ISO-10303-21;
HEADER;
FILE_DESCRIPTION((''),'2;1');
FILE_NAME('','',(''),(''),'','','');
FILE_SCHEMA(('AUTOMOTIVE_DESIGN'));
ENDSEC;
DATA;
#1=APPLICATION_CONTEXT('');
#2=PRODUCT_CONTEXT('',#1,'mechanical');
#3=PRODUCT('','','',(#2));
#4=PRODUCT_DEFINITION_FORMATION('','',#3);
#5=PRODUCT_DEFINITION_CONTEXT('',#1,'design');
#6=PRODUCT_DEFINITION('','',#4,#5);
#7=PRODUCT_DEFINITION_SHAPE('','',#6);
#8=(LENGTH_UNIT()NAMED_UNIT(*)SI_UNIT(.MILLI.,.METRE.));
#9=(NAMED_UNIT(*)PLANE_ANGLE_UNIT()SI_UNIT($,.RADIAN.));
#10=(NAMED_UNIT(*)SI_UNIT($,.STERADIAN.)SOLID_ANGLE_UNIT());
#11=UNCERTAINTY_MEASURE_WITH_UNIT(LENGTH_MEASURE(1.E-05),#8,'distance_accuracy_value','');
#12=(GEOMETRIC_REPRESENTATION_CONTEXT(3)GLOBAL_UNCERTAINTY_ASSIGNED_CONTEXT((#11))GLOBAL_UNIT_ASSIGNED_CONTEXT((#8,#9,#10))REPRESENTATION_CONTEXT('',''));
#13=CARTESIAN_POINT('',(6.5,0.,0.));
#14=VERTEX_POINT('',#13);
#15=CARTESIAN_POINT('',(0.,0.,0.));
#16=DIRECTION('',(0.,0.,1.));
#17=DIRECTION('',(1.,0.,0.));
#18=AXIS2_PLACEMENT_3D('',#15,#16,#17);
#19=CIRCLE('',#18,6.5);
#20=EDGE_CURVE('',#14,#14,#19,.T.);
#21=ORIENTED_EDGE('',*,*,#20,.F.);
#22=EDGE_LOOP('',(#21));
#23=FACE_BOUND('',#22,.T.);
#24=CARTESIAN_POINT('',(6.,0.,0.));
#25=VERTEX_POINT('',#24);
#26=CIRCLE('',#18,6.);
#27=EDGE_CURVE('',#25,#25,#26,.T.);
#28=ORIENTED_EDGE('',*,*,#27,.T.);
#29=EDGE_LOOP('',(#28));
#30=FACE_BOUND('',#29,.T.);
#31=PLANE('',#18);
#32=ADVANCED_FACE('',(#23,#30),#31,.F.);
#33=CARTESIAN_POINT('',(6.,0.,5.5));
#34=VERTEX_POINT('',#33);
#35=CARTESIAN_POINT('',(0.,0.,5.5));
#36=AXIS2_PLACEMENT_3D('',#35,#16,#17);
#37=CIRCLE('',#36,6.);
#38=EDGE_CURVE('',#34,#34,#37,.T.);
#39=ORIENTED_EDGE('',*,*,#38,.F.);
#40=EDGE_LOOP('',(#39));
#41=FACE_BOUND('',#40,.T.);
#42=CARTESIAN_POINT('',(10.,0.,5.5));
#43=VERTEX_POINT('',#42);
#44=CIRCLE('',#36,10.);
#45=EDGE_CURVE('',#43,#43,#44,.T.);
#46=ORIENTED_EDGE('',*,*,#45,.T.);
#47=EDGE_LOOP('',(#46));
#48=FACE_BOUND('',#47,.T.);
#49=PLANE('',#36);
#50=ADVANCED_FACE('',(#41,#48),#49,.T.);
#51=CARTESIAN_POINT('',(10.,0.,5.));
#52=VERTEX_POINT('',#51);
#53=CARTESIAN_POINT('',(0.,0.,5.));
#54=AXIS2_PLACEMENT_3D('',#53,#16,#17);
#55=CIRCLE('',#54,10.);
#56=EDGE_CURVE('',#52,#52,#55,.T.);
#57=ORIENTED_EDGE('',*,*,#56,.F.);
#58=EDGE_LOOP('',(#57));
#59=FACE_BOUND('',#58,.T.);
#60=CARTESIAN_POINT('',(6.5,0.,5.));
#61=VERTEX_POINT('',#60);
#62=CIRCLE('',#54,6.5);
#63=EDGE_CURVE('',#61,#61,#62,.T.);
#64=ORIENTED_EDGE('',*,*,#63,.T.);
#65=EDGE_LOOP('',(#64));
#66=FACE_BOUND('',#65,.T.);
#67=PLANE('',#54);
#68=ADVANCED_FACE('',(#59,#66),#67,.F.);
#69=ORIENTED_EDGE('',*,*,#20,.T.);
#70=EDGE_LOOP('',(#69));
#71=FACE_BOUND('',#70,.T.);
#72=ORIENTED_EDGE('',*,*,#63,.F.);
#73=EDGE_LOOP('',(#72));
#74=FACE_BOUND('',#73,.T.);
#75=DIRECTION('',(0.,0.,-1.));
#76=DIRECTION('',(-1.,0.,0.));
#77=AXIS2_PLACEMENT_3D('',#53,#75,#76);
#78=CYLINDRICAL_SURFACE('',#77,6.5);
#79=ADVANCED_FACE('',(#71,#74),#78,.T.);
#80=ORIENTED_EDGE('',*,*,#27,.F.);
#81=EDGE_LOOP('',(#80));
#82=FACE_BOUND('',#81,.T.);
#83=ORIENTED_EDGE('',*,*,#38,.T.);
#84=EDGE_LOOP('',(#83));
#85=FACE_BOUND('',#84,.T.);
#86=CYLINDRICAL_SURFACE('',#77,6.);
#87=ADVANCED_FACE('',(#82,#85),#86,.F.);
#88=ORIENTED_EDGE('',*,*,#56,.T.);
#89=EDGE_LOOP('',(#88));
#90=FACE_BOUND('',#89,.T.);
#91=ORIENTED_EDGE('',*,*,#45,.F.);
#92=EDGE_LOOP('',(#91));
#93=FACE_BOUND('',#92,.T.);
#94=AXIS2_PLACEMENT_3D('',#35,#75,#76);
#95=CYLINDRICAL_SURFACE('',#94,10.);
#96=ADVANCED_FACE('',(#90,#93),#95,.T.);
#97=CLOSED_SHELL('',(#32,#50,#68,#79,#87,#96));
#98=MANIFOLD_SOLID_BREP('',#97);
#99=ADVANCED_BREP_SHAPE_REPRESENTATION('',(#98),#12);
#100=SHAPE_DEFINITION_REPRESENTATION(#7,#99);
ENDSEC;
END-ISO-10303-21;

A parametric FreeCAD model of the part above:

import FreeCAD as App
import Part
import Sketcher

V = App.Vector

doc = App.newDocument("Part")
params = doc.addObject("Spreadsheet::Sheet", "Params")
for row, (alias, value) in enumerate([
    ("sketch1_diameter", "13 mm"),
    ("sketch1_diameter2", "12 mm"),
    ("pad1_length", "5 mm"),
    ("sketch2_diameter", "20 mm"),
    ("sketch2_diameter2", "12 mm"),
    ("pad2_length", "0.5 mm"),
], start=1):
    params.set(f"A{row}", alias)
    params.set(f"B{row}", "=" + value)
    params.setAlias(f"B{row}", alias)

body = doc.addObject("PartDesign::Body", "Body")

# Sketch on XY plane
sketch1 = doc.addObject("Sketcher::SketchObject", "Sketch")
body.addObject(sketch1)
sketch1.AttachmentSupport = (doc.XY_Plane, [""])
sketch1.MapMode = "FlatFace"
sketch1.addGeometry([
    Part.Circle(V(0, 0, 0), V(0, 0, 1), 6),
    Part.Circle(V(0, 0, 0), V(0, 0, 1), 6),
], False)
sketch1.addConstraint([
    Sketcher.Constraint("Coincident", 0, 3, -1, 1),
    Sketcher.Constraint("Coincident", 1, 3, -1, 1),
    Sketcher.Constraint("Diameter", 0, 13.0),
    Sketcher.Constraint("Diameter", 1, 12.0),
])
sketch1.setExpression("Constraints[2]", "Params.sketch1_diameter")
sketch1.setExpression("Constraints[3]", "Params.sketch1_diameter2")
pad1 = doc.addObject("PartDesign::Pad", "Pad")
body.addObject(pad1)
pad1.Profile = sketch1
pad1.setExpression("Length", "Params.pad1_length")

# Sketch on XY plane
sketch2 = doc.addObject("Sketcher::SketchObject", "Sketch001")
body.addObject(sketch2)
sketch2.AttachmentSupport = (doc.XY_Plane, [""])
sketch2.MapMode = "FlatFace"
sketch2.AttachmentOffset = App.Placement(V(0, 0, 5), App.Rotation())
sketch2.addGeometry([
    Part.Circle(V(0, 0, 0), V(0, 0, 1), 10),
    Part.Circle(V(0, 0, 0), V(0, 0, 1), 6),
], False)
sketch2.addConstraint([
    Sketcher.Constraint("Coincident", 0, 3, -1, 1),
    Sketcher.Constraint("Coincident", 1, 3, -1, 1),
    Sketcher.Constraint("Diameter", 0, 20.0),
    Sketcher.Constraint("Diameter", 1, 12.0),
])
sketch2.setExpression("Constraints[2]", "Params.sketch2_diameter")
sketch2.setExpression("Constraints[3]", "Params.sketch2_diameter2")
pad2 = doc.addObject("PartDesign::Pad", "Pad001")
body.addObject(pad2)
pad2.Profile = sketch2
pad2.setExpression("Length", "Params.pad2_length")

doc.recompute()
